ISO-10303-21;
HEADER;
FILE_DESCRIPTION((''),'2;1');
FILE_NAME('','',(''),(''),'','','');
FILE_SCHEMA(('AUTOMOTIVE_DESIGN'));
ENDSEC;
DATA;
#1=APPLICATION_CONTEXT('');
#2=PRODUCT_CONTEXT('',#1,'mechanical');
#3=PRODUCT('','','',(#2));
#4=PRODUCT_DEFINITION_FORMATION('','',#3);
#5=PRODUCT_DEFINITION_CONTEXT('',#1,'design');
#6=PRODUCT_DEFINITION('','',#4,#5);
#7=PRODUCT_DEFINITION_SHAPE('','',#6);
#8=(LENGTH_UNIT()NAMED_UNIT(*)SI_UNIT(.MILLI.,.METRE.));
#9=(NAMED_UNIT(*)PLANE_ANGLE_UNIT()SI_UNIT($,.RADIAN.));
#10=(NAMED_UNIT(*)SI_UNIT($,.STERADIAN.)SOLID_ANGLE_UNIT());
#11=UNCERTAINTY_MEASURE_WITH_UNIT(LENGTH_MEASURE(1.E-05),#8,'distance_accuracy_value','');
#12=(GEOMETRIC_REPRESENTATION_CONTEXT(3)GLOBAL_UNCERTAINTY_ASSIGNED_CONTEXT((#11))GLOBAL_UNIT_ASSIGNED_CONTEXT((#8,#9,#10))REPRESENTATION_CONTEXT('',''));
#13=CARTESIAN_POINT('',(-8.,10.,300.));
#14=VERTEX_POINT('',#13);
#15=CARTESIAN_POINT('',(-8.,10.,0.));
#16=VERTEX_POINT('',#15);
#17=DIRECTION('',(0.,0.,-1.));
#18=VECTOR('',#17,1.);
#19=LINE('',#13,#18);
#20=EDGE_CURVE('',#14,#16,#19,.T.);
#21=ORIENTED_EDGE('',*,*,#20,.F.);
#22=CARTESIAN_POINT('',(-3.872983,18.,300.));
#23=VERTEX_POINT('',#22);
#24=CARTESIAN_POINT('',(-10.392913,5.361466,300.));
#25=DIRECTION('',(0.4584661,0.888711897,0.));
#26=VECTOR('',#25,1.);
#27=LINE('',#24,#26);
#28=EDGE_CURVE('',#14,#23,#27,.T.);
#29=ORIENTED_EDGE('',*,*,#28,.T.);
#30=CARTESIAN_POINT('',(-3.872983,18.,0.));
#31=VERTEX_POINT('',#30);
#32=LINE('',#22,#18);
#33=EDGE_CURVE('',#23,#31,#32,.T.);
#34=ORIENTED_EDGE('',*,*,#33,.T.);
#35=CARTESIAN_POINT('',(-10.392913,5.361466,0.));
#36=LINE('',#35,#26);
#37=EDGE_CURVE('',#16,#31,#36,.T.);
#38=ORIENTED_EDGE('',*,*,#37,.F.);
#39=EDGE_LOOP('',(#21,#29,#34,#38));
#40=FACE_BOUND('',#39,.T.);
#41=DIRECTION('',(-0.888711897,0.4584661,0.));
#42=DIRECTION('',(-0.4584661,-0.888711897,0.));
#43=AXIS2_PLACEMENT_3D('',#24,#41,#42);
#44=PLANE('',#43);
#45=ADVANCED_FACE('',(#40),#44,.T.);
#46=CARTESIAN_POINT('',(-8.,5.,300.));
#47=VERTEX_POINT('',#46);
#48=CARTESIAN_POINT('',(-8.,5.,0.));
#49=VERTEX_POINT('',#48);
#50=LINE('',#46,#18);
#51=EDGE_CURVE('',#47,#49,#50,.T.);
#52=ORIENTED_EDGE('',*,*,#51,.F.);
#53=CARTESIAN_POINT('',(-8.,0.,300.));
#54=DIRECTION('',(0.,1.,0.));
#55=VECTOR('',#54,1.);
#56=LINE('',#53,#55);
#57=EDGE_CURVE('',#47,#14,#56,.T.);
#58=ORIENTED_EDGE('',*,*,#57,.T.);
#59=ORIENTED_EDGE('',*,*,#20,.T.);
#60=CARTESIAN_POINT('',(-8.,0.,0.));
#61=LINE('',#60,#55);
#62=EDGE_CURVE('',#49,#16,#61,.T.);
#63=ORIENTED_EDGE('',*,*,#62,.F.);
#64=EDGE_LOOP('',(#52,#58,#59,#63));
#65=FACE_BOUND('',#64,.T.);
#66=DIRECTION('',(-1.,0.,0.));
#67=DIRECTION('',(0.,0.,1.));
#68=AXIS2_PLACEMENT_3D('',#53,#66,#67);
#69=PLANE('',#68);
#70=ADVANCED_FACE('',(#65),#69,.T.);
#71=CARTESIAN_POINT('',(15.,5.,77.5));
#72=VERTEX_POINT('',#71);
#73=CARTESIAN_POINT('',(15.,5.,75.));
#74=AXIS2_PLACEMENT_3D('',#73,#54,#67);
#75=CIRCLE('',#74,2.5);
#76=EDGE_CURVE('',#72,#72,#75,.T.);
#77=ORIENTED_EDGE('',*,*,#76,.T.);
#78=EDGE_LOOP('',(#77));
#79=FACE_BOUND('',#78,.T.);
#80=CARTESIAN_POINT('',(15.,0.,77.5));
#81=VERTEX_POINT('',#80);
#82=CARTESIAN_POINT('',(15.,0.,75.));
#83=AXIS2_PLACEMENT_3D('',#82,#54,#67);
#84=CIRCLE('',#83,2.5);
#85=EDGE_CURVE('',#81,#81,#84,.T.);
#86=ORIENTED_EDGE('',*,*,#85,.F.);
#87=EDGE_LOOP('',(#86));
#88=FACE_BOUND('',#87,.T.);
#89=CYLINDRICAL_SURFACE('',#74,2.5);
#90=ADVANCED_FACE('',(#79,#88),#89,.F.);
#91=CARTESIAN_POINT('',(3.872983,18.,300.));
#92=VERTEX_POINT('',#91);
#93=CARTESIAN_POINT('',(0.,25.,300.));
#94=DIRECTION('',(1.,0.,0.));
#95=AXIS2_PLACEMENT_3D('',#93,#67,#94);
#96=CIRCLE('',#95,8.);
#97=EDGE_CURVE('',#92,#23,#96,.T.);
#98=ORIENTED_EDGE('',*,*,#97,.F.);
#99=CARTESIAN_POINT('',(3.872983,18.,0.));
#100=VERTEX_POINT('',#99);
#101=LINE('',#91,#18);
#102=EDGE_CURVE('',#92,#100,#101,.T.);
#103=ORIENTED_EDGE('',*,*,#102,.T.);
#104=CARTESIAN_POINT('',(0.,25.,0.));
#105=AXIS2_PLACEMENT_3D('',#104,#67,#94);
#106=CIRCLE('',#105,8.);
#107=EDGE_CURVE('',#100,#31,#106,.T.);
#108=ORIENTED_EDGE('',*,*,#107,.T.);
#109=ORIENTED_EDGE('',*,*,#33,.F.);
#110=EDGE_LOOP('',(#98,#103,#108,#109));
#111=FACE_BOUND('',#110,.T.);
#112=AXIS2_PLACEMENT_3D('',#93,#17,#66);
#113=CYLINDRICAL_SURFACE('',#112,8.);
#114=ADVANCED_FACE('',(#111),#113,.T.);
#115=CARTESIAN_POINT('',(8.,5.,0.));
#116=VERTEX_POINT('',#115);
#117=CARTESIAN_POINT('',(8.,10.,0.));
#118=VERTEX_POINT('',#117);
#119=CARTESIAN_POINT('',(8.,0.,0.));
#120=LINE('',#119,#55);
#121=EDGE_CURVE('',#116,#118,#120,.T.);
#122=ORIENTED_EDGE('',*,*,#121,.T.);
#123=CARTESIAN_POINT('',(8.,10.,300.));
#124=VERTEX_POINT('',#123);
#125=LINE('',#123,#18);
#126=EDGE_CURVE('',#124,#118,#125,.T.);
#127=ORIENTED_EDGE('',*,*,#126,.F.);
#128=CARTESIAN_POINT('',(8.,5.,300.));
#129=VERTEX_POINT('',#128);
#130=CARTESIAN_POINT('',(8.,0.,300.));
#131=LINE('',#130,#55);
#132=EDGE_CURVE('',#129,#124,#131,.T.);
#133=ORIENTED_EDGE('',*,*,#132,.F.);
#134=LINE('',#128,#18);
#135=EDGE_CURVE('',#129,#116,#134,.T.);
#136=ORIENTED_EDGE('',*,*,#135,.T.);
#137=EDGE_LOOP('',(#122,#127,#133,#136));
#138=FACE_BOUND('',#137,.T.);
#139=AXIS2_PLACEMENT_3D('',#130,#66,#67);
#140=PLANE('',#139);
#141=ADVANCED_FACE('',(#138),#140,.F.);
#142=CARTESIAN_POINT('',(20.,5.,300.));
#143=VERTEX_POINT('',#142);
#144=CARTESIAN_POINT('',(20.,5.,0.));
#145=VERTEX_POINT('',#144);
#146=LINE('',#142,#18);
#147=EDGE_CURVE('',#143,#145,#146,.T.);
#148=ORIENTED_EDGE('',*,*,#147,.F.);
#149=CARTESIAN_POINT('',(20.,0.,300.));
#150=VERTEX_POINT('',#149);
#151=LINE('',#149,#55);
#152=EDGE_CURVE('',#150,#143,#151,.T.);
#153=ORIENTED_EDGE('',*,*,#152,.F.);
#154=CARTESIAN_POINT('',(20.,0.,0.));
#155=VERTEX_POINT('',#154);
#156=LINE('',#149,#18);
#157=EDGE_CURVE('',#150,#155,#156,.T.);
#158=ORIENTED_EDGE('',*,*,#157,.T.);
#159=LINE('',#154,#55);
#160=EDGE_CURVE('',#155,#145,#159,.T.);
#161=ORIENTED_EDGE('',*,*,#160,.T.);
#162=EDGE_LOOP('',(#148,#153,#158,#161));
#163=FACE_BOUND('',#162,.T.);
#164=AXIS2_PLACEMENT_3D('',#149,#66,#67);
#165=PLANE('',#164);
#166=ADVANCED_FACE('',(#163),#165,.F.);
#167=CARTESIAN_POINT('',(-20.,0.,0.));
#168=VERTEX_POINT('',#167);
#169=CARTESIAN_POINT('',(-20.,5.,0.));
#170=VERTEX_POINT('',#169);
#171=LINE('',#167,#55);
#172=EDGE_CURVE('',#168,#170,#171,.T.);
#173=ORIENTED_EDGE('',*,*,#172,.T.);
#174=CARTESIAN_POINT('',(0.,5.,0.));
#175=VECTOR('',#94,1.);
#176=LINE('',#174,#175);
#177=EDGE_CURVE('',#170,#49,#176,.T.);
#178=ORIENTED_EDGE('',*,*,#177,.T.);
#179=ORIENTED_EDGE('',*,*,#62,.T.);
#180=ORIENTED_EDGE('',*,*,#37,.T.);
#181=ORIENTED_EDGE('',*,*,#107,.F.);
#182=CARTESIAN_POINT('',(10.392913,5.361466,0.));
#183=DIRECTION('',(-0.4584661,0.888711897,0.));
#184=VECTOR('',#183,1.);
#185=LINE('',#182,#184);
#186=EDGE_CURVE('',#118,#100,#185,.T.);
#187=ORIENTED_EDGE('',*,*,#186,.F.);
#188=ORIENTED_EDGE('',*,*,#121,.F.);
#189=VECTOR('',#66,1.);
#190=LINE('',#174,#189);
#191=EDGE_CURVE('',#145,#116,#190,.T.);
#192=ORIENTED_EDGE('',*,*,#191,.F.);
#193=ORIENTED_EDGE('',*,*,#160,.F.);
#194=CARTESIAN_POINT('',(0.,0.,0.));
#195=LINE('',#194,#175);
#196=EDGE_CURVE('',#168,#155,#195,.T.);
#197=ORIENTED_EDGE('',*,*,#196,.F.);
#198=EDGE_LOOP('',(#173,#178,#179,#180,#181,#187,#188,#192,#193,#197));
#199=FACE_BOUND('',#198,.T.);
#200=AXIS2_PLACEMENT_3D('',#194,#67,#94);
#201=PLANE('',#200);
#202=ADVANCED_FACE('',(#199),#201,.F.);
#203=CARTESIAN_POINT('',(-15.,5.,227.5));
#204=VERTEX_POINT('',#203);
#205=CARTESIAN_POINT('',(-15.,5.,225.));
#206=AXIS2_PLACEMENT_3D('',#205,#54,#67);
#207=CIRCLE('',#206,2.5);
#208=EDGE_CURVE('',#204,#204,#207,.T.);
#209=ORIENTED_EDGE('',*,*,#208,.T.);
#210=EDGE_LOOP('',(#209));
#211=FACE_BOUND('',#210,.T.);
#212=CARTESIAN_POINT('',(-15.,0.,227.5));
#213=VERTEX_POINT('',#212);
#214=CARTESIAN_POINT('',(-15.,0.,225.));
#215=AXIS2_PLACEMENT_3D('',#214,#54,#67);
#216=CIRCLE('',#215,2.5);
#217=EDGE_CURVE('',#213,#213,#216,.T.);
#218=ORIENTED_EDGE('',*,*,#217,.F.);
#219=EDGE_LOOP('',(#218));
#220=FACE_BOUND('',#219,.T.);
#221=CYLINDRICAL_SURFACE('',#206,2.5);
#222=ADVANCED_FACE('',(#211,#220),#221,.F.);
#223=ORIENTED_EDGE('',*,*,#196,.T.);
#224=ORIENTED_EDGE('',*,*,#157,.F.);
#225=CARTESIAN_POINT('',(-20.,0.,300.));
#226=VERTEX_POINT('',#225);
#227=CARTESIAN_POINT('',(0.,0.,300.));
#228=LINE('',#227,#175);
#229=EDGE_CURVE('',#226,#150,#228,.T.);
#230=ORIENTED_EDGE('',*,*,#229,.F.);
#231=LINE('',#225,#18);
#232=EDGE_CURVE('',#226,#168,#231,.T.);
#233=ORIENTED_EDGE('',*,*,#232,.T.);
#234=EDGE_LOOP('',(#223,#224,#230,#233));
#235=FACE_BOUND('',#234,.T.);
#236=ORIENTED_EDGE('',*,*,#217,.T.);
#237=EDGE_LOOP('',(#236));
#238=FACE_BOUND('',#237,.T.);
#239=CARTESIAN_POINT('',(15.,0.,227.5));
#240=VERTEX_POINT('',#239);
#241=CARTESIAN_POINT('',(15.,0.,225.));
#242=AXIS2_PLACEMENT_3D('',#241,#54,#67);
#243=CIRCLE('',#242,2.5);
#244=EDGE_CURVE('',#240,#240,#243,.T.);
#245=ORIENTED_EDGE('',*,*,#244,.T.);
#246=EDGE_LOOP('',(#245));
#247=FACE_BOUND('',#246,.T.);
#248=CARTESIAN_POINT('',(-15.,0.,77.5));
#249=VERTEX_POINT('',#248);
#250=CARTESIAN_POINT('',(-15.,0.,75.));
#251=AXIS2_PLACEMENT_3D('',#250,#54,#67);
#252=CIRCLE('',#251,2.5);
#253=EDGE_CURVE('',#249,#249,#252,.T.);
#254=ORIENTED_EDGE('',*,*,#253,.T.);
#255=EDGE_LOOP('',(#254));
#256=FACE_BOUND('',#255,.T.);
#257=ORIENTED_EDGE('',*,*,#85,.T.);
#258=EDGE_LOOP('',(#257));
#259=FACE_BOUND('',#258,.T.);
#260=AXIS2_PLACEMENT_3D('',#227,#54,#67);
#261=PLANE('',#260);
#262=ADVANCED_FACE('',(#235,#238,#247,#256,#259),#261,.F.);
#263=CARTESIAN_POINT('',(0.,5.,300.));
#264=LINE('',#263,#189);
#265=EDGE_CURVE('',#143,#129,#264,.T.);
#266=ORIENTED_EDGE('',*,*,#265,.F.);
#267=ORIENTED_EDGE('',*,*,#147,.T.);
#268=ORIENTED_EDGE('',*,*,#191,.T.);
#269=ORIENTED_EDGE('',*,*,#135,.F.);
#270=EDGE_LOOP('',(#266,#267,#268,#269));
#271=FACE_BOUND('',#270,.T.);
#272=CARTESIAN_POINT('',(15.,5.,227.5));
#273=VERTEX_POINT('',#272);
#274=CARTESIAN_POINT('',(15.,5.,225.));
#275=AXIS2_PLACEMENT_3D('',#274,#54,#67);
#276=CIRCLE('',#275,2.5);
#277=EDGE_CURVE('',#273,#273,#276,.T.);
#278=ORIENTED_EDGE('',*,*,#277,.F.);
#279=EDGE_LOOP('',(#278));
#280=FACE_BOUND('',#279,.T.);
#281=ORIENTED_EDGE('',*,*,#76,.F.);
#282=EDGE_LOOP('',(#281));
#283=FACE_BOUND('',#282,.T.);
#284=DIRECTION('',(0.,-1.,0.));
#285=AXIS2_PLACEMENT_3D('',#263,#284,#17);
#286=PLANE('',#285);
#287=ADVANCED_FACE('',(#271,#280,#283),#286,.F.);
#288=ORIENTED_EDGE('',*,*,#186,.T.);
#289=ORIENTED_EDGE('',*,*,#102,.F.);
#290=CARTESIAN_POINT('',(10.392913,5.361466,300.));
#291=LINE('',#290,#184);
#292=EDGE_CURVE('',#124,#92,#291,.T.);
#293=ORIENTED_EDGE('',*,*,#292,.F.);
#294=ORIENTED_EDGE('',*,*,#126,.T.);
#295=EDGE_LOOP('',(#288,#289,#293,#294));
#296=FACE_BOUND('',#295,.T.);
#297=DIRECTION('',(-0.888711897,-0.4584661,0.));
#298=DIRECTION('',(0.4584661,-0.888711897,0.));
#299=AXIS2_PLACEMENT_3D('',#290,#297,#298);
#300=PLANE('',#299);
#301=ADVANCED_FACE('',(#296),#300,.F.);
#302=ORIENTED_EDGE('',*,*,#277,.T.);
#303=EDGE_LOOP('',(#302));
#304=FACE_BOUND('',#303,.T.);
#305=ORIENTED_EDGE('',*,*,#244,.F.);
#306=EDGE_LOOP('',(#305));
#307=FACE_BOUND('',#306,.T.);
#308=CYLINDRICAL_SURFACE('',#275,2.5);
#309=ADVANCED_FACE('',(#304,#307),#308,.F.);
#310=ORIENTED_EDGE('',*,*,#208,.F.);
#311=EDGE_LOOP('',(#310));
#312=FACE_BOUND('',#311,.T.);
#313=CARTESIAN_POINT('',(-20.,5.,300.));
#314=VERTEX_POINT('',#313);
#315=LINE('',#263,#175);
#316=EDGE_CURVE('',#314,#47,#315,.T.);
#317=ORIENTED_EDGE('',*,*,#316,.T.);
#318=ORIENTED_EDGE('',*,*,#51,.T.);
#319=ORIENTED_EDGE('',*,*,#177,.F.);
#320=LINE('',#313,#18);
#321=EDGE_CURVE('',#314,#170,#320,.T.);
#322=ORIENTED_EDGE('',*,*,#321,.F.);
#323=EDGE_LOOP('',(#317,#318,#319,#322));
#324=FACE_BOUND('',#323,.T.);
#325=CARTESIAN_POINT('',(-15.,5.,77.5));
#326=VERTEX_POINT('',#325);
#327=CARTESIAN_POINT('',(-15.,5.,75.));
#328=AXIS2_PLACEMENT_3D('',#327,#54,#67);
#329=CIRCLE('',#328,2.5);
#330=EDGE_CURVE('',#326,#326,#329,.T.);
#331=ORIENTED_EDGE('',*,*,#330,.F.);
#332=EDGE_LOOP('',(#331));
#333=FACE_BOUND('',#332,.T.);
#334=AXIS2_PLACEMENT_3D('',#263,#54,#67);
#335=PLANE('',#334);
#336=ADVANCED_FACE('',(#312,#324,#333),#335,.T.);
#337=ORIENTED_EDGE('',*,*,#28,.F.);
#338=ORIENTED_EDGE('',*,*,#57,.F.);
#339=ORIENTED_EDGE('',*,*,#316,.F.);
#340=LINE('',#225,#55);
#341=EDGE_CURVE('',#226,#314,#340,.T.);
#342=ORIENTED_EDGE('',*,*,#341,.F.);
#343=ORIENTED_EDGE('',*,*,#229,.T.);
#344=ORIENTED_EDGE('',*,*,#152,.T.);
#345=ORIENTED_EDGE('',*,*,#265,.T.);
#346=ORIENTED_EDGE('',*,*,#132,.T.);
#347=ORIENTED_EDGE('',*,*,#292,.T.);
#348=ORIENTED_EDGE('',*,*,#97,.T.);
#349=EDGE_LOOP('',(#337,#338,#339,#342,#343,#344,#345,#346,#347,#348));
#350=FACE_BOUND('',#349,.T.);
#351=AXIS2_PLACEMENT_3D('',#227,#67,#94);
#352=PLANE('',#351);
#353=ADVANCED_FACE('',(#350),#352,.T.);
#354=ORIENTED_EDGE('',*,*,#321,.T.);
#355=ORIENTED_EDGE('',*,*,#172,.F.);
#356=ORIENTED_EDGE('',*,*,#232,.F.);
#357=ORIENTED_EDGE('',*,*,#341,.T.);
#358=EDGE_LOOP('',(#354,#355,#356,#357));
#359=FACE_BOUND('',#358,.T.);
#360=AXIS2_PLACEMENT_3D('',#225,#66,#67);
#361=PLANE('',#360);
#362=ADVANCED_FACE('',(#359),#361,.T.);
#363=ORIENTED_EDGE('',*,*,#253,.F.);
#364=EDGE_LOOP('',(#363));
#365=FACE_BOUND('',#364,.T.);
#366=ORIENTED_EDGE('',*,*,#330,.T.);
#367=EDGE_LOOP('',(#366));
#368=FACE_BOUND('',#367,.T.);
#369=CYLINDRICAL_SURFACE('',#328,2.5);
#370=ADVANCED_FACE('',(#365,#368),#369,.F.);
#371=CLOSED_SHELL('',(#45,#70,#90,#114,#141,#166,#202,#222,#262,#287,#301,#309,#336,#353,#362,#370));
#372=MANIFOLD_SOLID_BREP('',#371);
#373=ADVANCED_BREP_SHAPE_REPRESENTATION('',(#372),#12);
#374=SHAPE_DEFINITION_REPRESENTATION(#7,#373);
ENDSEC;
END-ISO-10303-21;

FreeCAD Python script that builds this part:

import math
import FreeCAD as App
import Part
import Sketcher
from FreeCAD import Vector
Q = App.Units.Quantity

doc = App.newDocument("Part")
body = doc.addObject("PartDesign::Body", "Body")

sketch1 = body.newObject("Sketcher::SketchObject", "Sketch")
sketch1.AttachmentSupport = (doc.getObject("XY_Plane"), [""])
sketch1.MapMode = "FlatFace"
sketch1.addGeometry([
    Part.LineSegment(Vector(-20, 5, 0), Vector(-20, 0, 0)),
    Part.LineSegment(Vector(-20, 0, 0), Vector(20, 0, 0)),
    Part.LineSegment(Vector(20, 0, 0), Vector(20, 5, 0)),
    Part.LineSegment(Vector(20, 5, 0), Vector(8, 5, 0)),
    Part.LineSegment(Vector(8, 5, 0), Vector(8, 10, 0)),
    Part.LineSegment(Vector(8, 10, 0), Vector(4, 18, 0)),
    Part.ArcOfCircle(Part.Circle(Vector(0, 25, 0), Vector(0, 0, 1), 8), math.radians(-119), math.radians(-61)),
    Part.LineSegment(Vector(-4, 18, 0), Vector(-8, 10, 0)),
    Part.LineSegment(Vector(-8, 10, 0), Vector(-8, 5, 0)),
    Part.LineSegment(Vector(-8, 5, 0), Vector(-20, 5, 0)),
], False)
sketch1.addConstraint([
    Sketcher.Constraint("Coincident", 0, 2, 1, 1),
    Sketcher.Constraint("Coincident", 1, 2, 2, 1),
    Sketcher.Constraint("Coincident", 2, 2, 3, 1),
    Sketcher.Constraint("Coincident", 3, 2, 4, 1),
    Sketcher.Constraint("Coincident", 4, 2, 5, 1),
    Sketcher.Constraint("Coincident", 5, 2, 6, 2),
    Sketcher.Constraint("Coincident", 6, 1, 7, 1),
    Sketcher.Constraint("Coincident", 7, 2, 8, 1),
    Sketcher.Constraint("Coincident", 8, 2, 9, 1),
    Sketcher.Constraint("Coincident", 9, 2, 0, 1),
    Sketcher.Constraint("Vertical", 0),
    Sketcher.Constraint("Horizontal", 1),
    Sketcher.Constraint("Vertical", 2),
    Sketcher.Constraint("Horizontal", 3),
    Sketcher.Constraint("Vertical", 4),
    Sketcher.Constraint("Vertical", 8),
    Sketcher.Constraint("Horizontal", 9),
    Sketcher.Constraint("Symmetric", 0, 2, 1, 2, -1, 1),
    Sketcher.Constraint("Symmetric", 5, 2, 6, 1, -2),
    Sketcher.Constraint("Symmetric", 4, 2, 7, 2, -2),
    Sketcher.Constraint("Horizontal", 3, 2, 8, 2),
    Sketcher.Constraint("Equal", 2, 4),
    Sketcher.Constraint("Radius", 6, Q("8 mm")),
    Sketcher.Constraint("DistanceX", 1, 1, 1, 2, Q("40 mm")),
    Sketcher.Constraint("DistanceX", 3, 2, 3, 1, Q("12 mm")),
    Sketcher.Constraint("DistanceY", 0, 2, 0, 1, Q("5 mm")),
    Sketcher.Constraint("DistanceY", -1, 1, 6, 3, Q("25 mm")),
    Sketcher.Constraint("DistanceY", -1, 1, 5, 2, Q("18 mm")),
])
pad1 = body.newObject("PartDesign::Pad", "Pad")
pad1.Profile = sketch1
pad1.Length = 300

sketch2 = body.newObject("Sketcher::SketchObject", "Sketch001")
sketch2.AttachmentSupport = (doc.getObject("XY_Plane"), [""])
sketch2.MapMode = "FlatFace"
sketch2.addGeometry(Part.Circle(Vector(0, 25, 0), Vector(0, 0, 1), 8), False)
sketch2.addConstraint([
    Sketcher.Constraint("PointOnObject", 0, 3, -2),
    Sketcher.Constraint("Diameter", 0, Q("16 mm")),
    Sketcher.Constraint("DistanceY", -1, 1, 0, 3, Q("25 mm")),
])
pad2 = body.newObject("PartDesign::Pad", "Pad001")
pad2.Profile = sketch2
pad2.Length = 300

sketch3 = body.newObject("Sketcher::SketchObject", "Sketch002")
sketch3.AttachmentSupport = (doc.getObject("XZ_Plane"), [""])
sketch3.MapMode = "FlatFace"
sketch3.AttachmentOffset = App.Placement(Vector(0, 0, -5), App.Rotation())
sketch3.addGeometry([
    Part.Circle(Vector(-15, 225, 0), Vector(0, 0, 1), 2.5),
    Part.Circle(Vector(15, 225, 0), Vector(0, 0, 1), 2.5),
], False)
sketch3.addConstraint([
    Sketcher.Constraint("Equal", 0, 1),
    Sketcher.Constraint("Symmetric", 0, 3, 1, 3, -2),
    Sketcher.Constraint("Diameter", 0, Q("5 mm")),
    Sketcher.Constraint("DistanceX", 0, 3, -1, 1, Q("15 mm")),
    Sketcher.Constraint("DistanceY", -1, 1, 0, 3, Q("225 mm")),
])
doc.recompute()
hole = body.newObject("PartDesign::Hole", "Hole")
hole.Profile = sketch3
hole.ThreadType = "None"
hole.Diameter = 5
hole.DepthType = "ThroughAll"
hole.Reversed = True
doc.recompute()

linearpattern = body.newObject("PartDesign::LinearPattern", "LinearPattern")
linearpattern.Originals = [hole]
linearpattern.Direction = (doc.getObject("Z_Axis"), [""])
linearpattern.Mode = "offset"
linearpattern.Offset = 150
linearpattern.Occurrences = 2
linearpattern.Reversed = True
body.Tip = linearpattern

doc.recompute()
